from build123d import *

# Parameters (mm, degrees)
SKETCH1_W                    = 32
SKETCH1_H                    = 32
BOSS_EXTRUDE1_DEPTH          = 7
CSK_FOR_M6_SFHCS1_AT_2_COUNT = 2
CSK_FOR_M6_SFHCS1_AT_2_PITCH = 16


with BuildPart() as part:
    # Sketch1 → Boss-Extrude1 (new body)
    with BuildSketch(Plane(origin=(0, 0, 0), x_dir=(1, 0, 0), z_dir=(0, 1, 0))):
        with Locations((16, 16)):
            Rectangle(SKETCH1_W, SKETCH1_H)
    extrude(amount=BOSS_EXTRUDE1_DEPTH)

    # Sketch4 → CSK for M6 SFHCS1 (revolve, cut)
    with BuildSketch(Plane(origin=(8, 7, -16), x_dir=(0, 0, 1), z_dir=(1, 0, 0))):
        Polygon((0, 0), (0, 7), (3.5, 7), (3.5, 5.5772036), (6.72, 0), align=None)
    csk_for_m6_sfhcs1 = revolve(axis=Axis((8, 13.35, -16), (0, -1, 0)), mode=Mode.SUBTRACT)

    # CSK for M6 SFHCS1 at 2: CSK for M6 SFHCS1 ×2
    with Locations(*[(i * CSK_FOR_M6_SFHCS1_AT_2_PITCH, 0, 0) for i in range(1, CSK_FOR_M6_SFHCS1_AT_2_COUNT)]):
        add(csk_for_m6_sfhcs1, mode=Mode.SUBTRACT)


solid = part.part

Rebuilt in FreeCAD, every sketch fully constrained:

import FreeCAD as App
import Part
import Sketcher
from FreeCAD import Vector
Q = App.Units.Quantity

doc = App.newDocument("Part")
body = doc.addObject("PartDesign::Body", "Body")

# Sketch on XZ plane
sketch1 = body.newObject("Sketcher::SketchObject", "Sketch")
sketch1.AttachmentSupport = (doc.getObject("XZ_Plane"), [""])
sketch1.MapMode = "FlatFace"
sketch1.addGeometry([
    Part.LineSegment(Vector(0, -32, 0), Vector(0, 0, 0)),
    Part.LineSegment(Vector(0, 0, 0), Vector(32, 0, 0)),
    Part.LineSegment(Vector(32, 0, 0), Vector(32, -32, 0)),
    Part.LineSegment(Vector(32, -32, 0), Vector(0, -32, 0)),
], False)
sketch1.addConstraint([
    Sketcher.Constraint("Coincident", 0, 2, 1, 1),
    Sketcher.Constraint("Coincident", 1, 2, 2, 1),
    Sketcher.Constraint("Coincident", 2, 2, 3, 1),
    Sketcher.Constraint("Coincident", 3, 2, 0, 1),
    Sketcher.Constraint("Vertical", 0),
    Sketcher.Constraint("Horizontal", 1),
    Sketcher.Constraint("Vertical", 2),
    Sketcher.Constraint("Horizontal", 3),
    Sketcher.Constraint("Coincident", 0, 2, -1, 1),
    Sketcher.Constraint("Equal", 3, 0),
    Sketcher.Constraint("DistanceX", 1, 1, 1, 2, 32.0),
])
pad1 = body.newObject("PartDesign::Pad", "Pad")
pad1.Profile = sketch1
pad1.Length = 7
pad1.Reversed = True

# Sketch on YZ plane
sketch2 = body.newObject("Sketcher::SketchObject", "Sketch001")
sketch2.AttachmentSupport = (doc.getObject("YZ_Plane"), [""])
sketch2.MapMode = "FlatFace"
sketch2.AttachmentOffset = App.Placement(Vector(0, 0, 8), App.Rotation())
sketch2.addGeometry([
    Part.LineSegment(Vector(0, -16, 0), Vector(7, -16, 0)),  # 0
    Part.LineSegment(Vector(7, -16, 0), Vector(7, -9.3, 0)),  # 1
    Part.LineSegment(Vector(7, -9.3, 0), Vector(1.4, -12.5, 0)),  # 2
    Part.LineSegment(Vector(1.4, -12.5, 0), Vector(0, -12.5, 0)),  # 3
    Part.LineSegment(Vector(0, -12.5, 0), Vector(0, -16, 0)),  # 4
], False)
sketch2.addGeometry(Part.LineSegment(Vector(7, -16, 0), Vector(0, -16, 0)), True)  # axis
sketch2.addConstraint([
    Sketcher.Constraint("Coincident", 0, 2, 1, 1),
    Sketcher.Constraint("Coincident", 1, 2, 2, 1),
    Sketcher.Constraint("Coincident", 2, 2, 3, 1),
    Sketcher.Constraint("Coincident", 3, 2, 4, 1),
    Sketcher.Constraint("Coincident", 4, 2, 0, 1),
    Sketcher.Constraint("Horizontal", 0),
    Sketcher.Constraint("Vertical", 1),
    Sketcher.Constraint("Horizontal", 3),
    Sketcher.Constraint("Vertical", 4),
    Sketcher.Constraint("Horizontal", 5),
    Sketcher.Constraint("Coincident", 5, 1, 0, 2),
    Sketcher.Constraint("PointOnObject", 3, 2, -2),
    Sketcher.Constraint("PointOnObject", 5, 2, -2),
    Sketcher.Constraint("DistanceX", 0, 1, 0, 2, 7.0),
    Sketcher.Constraint("Angle", 2, Q("-150 deg")),
    Sketcher.Constraint("DistanceY", 4, 2, 4, 1, 3.5),
    Sketcher.Constraint("DistanceY", 0, 2, -1, 1, 16.0),
    Sketcher.Constraint("DistanceY", 1, 1, 1, 2, 6.72),
])
groove = body.newObject("PartDesign::Groove", "Groove")
groove.Profile = sketch2
groove.ReferenceAxis = (sketch2, ["Axis0"])
groove.Angle = 360
doc.recompute()

linearpattern = body.newObject("PartDesign::LinearPattern", "LinearPattern")
linearpattern.Originals = [groove]
linearpattern.Direction = (doc.getObject("X_Axis"), [""])
linearpattern.Mode = "offset"
linearpattern.Offset = 16
linearpattern.Occurrences = 2
body.Tip = linearpattern

doc.recompute()
